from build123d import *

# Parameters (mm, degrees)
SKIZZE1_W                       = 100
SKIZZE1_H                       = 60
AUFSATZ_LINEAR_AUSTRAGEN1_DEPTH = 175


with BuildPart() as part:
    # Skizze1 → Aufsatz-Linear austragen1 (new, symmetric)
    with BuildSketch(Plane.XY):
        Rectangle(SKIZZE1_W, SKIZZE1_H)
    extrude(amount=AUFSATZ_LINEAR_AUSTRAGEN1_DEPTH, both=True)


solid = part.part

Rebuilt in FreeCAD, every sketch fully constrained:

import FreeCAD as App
import Part
import Sketcher

doc = App.newDocument("Part")
body = doc.addObject("PartDesign::Body", "Body")

# Sketch on XY plane
sketch1 = body.newObject("Sketcher::SketchObject", "Sketch")
sketch1.AttachmentSupport = (doc.getObject("XY_Plane"), [""])
sketch1.MapMode = "FlatFace"
sketch1.addGeometry([
    Part.LineSegment(App.Vector(-50, 30, 0), App.Vector(-50, -30, 0)),
    Part.LineSegment(App.Vector(-50, -30, 0), App.Vector(50, -30, 0)),
    Part.LineSegment(App.Vector(50, -30, 0), App.Vector(50, 30, 0)),
    Part.LineSegment(App.Vector(50, 30, 0), App.Vector(-50, 30, 0)),
], False)
sketch1.addConstraint([
    Sketcher.Constraint("Coincident", 0, 2, 1, 1),
    Sketcher.Constraint("Coincident", 1, 2, 2, 1),
    Sketcher.Constraint("Coincident", 2, 2, 3, 1),
    Sketcher.Constraint("Coincident", 3, 2, 0, 1),
    Sketcher.Constraint("Vertical", 0),
    Sketcher.Constraint("Horizontal", 1),
    Sketcher.Constraint("Vertical", 2),
    Sketcher.Constraint("Horizontal", 3),
    Sketcher.Constraint("Symmetric", 0, 2, 2, 2, -1, 1),
    Sketcher.Constraint("DistanceX", 1, 1, 1, 2, 100.0),
    Sketcher.Constraint("DistanceY", 0, 2, 0, 1, 60.0),
])
pad1 = body.newObject("PartDesign::Pad", "Pad")
pad1.Profile = sketch1
pad1.Length = 350
pad1.Midplane = True

doc.recompute()
